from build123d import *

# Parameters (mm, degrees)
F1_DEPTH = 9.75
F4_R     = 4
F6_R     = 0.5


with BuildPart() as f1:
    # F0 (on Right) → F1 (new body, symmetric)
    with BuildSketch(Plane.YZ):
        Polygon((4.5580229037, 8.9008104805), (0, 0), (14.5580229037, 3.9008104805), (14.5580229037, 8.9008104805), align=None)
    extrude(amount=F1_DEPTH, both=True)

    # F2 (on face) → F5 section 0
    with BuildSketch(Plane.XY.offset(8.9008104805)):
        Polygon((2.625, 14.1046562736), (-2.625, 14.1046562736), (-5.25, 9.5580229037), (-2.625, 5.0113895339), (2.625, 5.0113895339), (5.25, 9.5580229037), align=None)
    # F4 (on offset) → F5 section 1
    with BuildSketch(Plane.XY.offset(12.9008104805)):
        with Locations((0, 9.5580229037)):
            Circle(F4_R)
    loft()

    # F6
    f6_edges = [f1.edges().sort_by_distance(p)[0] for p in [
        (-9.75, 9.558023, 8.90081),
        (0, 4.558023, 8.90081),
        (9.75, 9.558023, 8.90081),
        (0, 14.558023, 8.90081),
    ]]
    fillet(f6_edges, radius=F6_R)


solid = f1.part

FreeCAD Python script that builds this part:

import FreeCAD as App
import Part
import Sketcher

V = App.Vector
Q = App.Units.Quantity


def edges_at(feature, points):
    """Names of the edges that pass closest to the given points."""
    edges = feature.Shape.Edges
    near = lambda p: min(range(len(edges)), key=lambda i: edges[i].distToShape(Part.Vertex(*p))[0])
    return sorted({f"Edge{near(p) + 1}" for p in points})


def add_polygon(sketch, points):
    """Adds a closed chain of lines whose ends are joined by coincident constraints."""
    first, n = sketch.GeometryCount, len(points)
    for a, b in zip(points, points[1:] + points[:1]):
        sketch.addGeometry(Part.LineSegment(App.Vector(*a, 0), App.Vector(*b, 0)), False)
    for i in range(n):
        sketch.addConstraint(Sketcher.Constraint("Coincident", first + i, 2, first + (i + 1) % n, 1))

doc = App.newDocument("Part")
body = doc.addObject("PartDesign::Body", "Body")

# Sketch on YZ plane
sketch1 = body.newObject("Sketcher::SketchObject", "Sketch")
sketch1.AttachmentSupport = (doc.getObject("YZ_Plane"), [""])
sketch1.MapMode = "FlatFace"
add_polygon(sketch1, [(5, 9), (0, 0), (15, 4), (15, 9)])  # lines 0-3
sketch1.addConstraint([
    Sketcher.Constraint("Vertical", 2),
    Sketcher.Constraint("Horizontal", 3),
    Sketcher.Constraint("Coincident", 0, 2, -1, 1),
    Sketcher.Constraint("DistanceX", 3, 2, 3, 1, 10.0),
    Sketcher.Constraint("DistanceY", 2, 1, 2, 2, 5.0),
    Sketcher.Constraint("Angle", 1, Q("15 deg")),
    Sketcher.Constraint("Distance", 0, 10.0),
])
pad1 = body.newObject("PartDesign::Pad", "Pad")
pad1.Profile = sketch1
pad1.Length = 19.5
pad1.Midplane = True

# Sketch on XY plane
sketch2 = body.newObject("Sketcher::SketchObject", "Sketch001")
sketch2.AttachmentSupport = (doc.getObject("XY_Plane"), [""])
sketch2.MapMode = "FlatFace"
sketch2.AttachmentOffset = App.Placement(V(0, 0, 8.90081), App.Rotation())
add_polygon(sketch2, [(3, 14), (-3, 14), (-5, 10), (-3, 5), (3, 5), (5, 10)])  # lines 0-5
sketch2.addConstraint([
    Sketcher.Constraint("Horizontal", 0),
    Sketcher.Constraint("Horizontal", 3),
    Sketcher.Constraint("Symmetric", 1, 2, 4, 2, -2),
    Sketcher.Constraint("Parallel", 1, 4),
    Sketcher.Constraint("Parallel", 2, 5),
    Sketcher.Constraint("Vertical", 0, 2, 2, 2),
    Sketcher.Constraint("Vertical", 3, 2, 5, 2),
    Sketcher.Constraint("Angle", 1, Q("-120 deg")),
    Sketcher.Constraint("DistanceX", 0, 2, 0, 1, 5.25),
    Sketcher.Constraint("DistanceX", 1, 2, 4, 2, 10.5),
    Sketcher.Constraint("DistanceY", -1, 1, 2, 2, 5.01139),
])

# Sketch on XY plane
sketch3 = body.newObject("Sketcher::SketchObject", "Sketch002")
sketch3.AttachmentSupport = (doc.getObject("XY_Plane"), [""])
sketch3.MapMode = "FlatFace"
sketch3.AttachmentOffset = App.Placement(V(0, 0, 12.90081), App.Rotation())
sketch3.addGeometry(Part.Circle(V(0, 9.6, 0), V(0, 0, 1), 4), False)
sketch3.addConstraint([
    Sketcher.Constraint("PointOnObject", 0, 3, -2),
    Sketcher.Constraint("Diameter", 0, 8.0),
    Sketcher.Constraint("DistanceY", -1, 1, 0, 3, 9.558023),
])

additiveloft = body.newObject("PartDesign::AdditiveLoft", "AdditiveLoft")
additiveloft.Profile = sketch2
additiveloft.Sections = [sketch3]
doc.recompute()

fillet = body.newObject("PartDesign::Fillet", "Fillet")
fillet.Base = (additiveloft, edges_at(additiveloft, [
    (-9.75, 9.558, 8.901),
    (0, 4.558, 8.901),
    (9.75, 9.558, 8.901),
    (0, 14.558, 8.901),
]))
fillet.Radius = 0.5

doc.recompute()
